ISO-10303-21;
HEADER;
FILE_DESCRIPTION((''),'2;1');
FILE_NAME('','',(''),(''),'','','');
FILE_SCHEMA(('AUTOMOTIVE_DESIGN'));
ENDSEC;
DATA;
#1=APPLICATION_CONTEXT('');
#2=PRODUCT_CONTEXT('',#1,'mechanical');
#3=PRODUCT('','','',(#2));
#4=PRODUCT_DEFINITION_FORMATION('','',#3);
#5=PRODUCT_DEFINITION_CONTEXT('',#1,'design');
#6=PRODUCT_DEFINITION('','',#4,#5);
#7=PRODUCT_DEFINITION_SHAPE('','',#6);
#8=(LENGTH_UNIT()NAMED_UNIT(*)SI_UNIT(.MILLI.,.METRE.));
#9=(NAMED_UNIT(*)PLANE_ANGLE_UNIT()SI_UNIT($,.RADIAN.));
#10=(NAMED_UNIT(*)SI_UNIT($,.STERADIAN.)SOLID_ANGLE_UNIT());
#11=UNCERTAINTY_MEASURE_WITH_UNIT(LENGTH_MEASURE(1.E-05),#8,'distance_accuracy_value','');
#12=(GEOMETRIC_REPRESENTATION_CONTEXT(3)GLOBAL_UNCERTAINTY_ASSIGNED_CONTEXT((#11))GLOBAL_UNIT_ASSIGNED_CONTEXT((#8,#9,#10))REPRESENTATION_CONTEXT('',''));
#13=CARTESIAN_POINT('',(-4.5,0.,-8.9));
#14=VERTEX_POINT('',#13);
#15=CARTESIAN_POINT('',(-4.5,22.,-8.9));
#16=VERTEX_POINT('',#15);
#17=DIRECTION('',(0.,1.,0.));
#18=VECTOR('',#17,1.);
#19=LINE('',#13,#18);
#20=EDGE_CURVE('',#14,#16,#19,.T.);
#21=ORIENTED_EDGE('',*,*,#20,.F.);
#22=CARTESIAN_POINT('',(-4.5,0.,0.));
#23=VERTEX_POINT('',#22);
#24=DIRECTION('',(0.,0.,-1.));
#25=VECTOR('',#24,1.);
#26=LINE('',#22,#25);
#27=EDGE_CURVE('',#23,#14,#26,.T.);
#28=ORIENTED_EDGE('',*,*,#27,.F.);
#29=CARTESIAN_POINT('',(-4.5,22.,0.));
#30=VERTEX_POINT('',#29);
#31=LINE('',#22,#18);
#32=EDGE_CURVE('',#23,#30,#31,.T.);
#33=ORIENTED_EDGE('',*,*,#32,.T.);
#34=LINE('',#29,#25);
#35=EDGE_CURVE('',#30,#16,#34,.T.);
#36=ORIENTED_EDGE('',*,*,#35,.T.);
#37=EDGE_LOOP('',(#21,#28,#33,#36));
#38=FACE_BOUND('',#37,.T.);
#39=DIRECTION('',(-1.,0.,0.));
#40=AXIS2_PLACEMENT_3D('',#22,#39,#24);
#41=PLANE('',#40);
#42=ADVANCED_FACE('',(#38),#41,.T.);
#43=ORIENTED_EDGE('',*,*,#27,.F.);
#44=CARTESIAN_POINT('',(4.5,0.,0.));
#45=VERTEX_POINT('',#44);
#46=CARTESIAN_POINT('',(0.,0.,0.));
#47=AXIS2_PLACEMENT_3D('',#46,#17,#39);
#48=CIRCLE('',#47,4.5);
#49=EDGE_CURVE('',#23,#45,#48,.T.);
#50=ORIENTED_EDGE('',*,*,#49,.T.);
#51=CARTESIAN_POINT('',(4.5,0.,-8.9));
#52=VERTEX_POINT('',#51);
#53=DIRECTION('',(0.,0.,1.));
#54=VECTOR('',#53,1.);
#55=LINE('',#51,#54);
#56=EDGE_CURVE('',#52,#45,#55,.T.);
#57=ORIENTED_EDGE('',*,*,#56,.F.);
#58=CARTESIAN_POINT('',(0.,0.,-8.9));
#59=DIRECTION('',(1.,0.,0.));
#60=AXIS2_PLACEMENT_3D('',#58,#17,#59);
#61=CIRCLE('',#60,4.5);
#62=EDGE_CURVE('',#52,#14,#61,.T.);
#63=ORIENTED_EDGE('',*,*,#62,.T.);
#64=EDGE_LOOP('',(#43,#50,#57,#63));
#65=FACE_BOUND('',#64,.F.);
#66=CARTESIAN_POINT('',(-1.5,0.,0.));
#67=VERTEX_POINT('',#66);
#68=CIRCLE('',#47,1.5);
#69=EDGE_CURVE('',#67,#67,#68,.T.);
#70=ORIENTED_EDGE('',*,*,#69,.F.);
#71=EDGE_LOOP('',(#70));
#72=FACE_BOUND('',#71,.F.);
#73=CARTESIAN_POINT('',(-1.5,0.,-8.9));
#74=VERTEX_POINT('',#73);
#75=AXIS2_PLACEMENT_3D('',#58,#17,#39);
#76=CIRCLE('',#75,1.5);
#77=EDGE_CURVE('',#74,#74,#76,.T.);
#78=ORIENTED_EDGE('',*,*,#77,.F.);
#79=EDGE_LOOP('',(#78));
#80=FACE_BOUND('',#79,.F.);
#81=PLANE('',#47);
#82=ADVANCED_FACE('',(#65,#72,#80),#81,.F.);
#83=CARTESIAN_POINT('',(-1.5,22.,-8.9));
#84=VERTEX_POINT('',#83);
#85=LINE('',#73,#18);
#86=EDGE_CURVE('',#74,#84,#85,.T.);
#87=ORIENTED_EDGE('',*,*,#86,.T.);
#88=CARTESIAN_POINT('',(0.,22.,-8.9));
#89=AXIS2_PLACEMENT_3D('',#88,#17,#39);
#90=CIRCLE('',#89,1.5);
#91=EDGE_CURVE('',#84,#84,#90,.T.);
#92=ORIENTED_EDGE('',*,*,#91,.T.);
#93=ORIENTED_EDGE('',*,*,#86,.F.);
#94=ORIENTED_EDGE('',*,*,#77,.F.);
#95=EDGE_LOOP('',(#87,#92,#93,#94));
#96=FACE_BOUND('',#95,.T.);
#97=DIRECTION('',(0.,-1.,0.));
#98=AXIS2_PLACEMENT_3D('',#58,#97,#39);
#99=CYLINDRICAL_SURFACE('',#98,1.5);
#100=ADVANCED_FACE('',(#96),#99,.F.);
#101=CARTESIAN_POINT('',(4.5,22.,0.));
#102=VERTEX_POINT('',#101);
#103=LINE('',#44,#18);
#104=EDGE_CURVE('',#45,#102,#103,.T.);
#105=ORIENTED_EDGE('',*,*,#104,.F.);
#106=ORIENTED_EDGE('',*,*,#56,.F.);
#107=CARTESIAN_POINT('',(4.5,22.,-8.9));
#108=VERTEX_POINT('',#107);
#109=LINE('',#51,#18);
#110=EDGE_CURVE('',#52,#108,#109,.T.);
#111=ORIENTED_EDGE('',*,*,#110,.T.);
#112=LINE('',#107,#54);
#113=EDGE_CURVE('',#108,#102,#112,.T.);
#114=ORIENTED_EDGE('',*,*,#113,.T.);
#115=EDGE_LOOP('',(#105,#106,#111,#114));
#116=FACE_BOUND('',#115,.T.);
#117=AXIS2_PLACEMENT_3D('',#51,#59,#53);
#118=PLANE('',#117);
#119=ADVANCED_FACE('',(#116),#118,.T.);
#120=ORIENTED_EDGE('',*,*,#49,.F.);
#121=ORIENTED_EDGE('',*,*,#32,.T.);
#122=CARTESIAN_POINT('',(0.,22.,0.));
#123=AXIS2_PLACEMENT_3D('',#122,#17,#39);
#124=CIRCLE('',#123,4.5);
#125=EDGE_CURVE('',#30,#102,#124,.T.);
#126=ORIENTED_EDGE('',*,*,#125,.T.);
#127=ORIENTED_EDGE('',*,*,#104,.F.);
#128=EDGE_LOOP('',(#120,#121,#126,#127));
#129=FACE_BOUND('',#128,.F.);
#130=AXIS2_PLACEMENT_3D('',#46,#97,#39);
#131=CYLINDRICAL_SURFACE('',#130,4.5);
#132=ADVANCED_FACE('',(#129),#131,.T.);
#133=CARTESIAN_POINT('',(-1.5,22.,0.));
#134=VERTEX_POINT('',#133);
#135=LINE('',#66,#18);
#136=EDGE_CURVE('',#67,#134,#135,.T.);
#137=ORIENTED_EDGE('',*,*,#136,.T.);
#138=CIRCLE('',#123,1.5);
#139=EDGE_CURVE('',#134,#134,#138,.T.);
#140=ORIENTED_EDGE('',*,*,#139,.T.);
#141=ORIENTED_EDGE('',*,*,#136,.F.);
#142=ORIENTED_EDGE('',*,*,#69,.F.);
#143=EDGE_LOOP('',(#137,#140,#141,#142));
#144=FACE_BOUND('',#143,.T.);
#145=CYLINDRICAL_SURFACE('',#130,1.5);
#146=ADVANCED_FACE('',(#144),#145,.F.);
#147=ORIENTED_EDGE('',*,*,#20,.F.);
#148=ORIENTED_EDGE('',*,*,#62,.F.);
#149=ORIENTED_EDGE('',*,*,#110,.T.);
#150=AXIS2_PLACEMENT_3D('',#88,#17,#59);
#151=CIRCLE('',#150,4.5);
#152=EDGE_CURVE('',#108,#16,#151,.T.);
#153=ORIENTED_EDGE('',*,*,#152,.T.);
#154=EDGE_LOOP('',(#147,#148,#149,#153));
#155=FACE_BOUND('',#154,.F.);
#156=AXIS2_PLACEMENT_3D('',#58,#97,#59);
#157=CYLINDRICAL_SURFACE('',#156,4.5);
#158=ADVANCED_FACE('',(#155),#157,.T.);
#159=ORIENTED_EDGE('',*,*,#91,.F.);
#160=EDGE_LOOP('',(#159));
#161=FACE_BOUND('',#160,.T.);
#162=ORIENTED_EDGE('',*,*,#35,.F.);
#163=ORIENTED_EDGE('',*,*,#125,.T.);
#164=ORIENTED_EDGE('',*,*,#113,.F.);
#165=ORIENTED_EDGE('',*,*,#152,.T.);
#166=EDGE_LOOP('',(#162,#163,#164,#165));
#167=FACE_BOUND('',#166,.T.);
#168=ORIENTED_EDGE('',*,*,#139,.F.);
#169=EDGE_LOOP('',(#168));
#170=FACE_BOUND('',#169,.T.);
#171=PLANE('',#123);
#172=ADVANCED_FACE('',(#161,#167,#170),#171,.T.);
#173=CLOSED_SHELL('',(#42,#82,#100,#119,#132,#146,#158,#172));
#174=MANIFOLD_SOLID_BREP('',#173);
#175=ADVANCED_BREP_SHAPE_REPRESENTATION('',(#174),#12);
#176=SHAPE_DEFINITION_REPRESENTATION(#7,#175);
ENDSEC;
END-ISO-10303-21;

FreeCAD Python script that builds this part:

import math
import FreeCAD as App
import Part
import Sketcher

V = App.Vector

doc = App.newDocument("Part")
body = doc.addObject("PartDesign::Body", "Body")

# Sketch on XZ plane
sketch1 = body.newObject("Sketcher::SketchObject", "Sketch")
sketch1.AttachmentSupport = (doc.getObject("XZ_Plane"), [""])
sketch1.MapMode = "FlatFace"
sketch1.addGeometry(Part.LineSegment(V(4.5, 0, 0), V(4.5, -8.9, 0)), False)
sketch1.addGeometry(Part.ArcOfCircle(Part.Circle(V(0, -8.9, 0), V(0, 0, 1), 4.5), math.radians(180), math.radians(360)), False)
sketch1.addGeometry(Part.LineSegment(V(-4.5, -8.9, 0), V(-4.5, 0, 0)), False)
sketch1.addGeometry(Part.ArcOfCircle(Part.Circle(V(0, 0, 0), V(0, 0, 1), 4.5), math.radians(0), math.radians(180)), False)
sketch1.addGeometry(Part.Circle(V(0, -8.9, 0), V(0, 0, 1), 1.5), False)
sketch1.addGeometry(Part.Circle(V(0, 0, 0), V(0, 0, 1), 1.5), False)
sketch1.addConstraint(Sketcher.Constraint("Tangent", 0, 2, 1, 2))
sketch1.addConstraint(Sketcher.Constraint("Tangent", 1, 1, 2, 1))
sketch1.addConstraint(Sketcher.Constraint("Tangent", 2, 2, 3, 2))
sketch1.addConstraint(Sketcher.Constraint("Tangent", 3, 1, 0, 1))
sketch1.addConstraint(Sketcher.Constraint("Vertical", 0))
sketch1.addConstraint(Sketcher.Constraint("Vertical", 2))
sketch1.addConstraint(Sketcher.Constraint("Coincident", 3, 3, -1, 1))
sketch1.addConstraint(Sketcher.Constraint("Coincident", 5, 3, -1, 1))
sketch1.addConstraint(Sketcher.Constraint("Coincident", 4, 3, 1, 3))
sketch1.addConstraint(Sketcher.Constraint("Equal", 4, 5))
sketch1.addConstraint(Sketcher.Constraint("Diameter", 4, 3.0))
sketch1.addConstraint(Sketcher.Constraint("Radius", 1, 4.5))
sketch1.addConstraint(Sketcher.Constraint("DistanceY", 0, 2, 0, 1, 8.9))
pad1 = body.newObject("PartDesign::Pad", "Pad")
pad1.Profile = sketch1
pad1.Length = 22
pad1.Reversed = True

doc.recompute()
